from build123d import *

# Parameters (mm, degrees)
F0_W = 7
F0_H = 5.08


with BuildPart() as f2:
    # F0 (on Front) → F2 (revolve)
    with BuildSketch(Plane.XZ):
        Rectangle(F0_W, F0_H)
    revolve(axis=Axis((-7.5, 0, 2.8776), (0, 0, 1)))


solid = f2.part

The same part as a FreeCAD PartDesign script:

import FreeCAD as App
import Part
import Sketcher
from FreeCAD import Vector
Q = App.Units.Quantity


def add_polygon(sketch, points):
    """Adds a closed chain of lines whose ends are joined by coincident constraints."""
    first, n = sketch.GeometryCount, len(points)
    for a, b in zip(points, points[1:] + points[:1]):
        sketch.addGeometry(Part.LineSegment(App.Vector(*a, 0), App.Vector(*b, 0)), False)
    for i in range(n):
        sketch.addConstraint(Sketcher.Constraint("Coincident", first + i, 2, first + (i + 1) % n, 1))

doc = App.newDocument("Part")
body = doc.addObject("PartDesign::Body", "Body")

# Sketch on XZ plane
sketch1 = doc.addObject("Sketcher::SketchObject", "Sketch")
body.addObject(sketch1)
sketch1.AttachmentSupport = (doc.XZ_Plane, [""])
sketch1.MapMode = "FlatFace"
add_polygon(sketch1, [(-4, 3), (-4, -3), (4, -3), (4, 3)])  # lines 0-3
sketch1.addGeometry(Part.LineSegment(Vector(-8, -3, 0), Vector(-8, 3, 0)), True)  # axis
sketch1.addConstraint(Sketcher.Constraint("Vertical", 0))
sketch1.addConstraint(Sketcher.Constraint("Horizontal", 1))
sketch1.addConstraint(Sketcher.Constraint("Vertical", 2))
sketch1.addConstraint(Sketcher.Constraint("Horizontal", 3))
sketch1.addConstraint(Sketcher.Constraint("Vertical", 4))
sketch1.addConstraint(Sketcher.Constraint("Symmetric", 0, 2, 2, 2, -1, 1))
sketch1.addConstraint(Sketcher.Constraint("Horizontal", 1, 2, 4, 1))
sketch1.addConstraint(Sketcher.Constraint("Horizontal", 3, 2, 4, 2))
sketch1.addConstraint(Sketcher.Constraint("DistanceX", 1, 1, 1, 2, Q("7 mm")))
sketch1.addConstraint(Sketcher.Constraint("DistanceX", 4, 1, 0, 2, Q("4 mm")))
sketch1.addConstraint(Sketcher.Constraint("DistanceY", 0, 2, 0, 1, Q("5.08 mm")))
revolution = doc.addObject("PartDesign::Revolution", "Revolution")
body.addObject(revolution)
revolution.Profile = sketch1
revolution.ReferenceAxis = (sketch1, ["Axis0"])
revolution.Angle = 360

doc.recompute()
